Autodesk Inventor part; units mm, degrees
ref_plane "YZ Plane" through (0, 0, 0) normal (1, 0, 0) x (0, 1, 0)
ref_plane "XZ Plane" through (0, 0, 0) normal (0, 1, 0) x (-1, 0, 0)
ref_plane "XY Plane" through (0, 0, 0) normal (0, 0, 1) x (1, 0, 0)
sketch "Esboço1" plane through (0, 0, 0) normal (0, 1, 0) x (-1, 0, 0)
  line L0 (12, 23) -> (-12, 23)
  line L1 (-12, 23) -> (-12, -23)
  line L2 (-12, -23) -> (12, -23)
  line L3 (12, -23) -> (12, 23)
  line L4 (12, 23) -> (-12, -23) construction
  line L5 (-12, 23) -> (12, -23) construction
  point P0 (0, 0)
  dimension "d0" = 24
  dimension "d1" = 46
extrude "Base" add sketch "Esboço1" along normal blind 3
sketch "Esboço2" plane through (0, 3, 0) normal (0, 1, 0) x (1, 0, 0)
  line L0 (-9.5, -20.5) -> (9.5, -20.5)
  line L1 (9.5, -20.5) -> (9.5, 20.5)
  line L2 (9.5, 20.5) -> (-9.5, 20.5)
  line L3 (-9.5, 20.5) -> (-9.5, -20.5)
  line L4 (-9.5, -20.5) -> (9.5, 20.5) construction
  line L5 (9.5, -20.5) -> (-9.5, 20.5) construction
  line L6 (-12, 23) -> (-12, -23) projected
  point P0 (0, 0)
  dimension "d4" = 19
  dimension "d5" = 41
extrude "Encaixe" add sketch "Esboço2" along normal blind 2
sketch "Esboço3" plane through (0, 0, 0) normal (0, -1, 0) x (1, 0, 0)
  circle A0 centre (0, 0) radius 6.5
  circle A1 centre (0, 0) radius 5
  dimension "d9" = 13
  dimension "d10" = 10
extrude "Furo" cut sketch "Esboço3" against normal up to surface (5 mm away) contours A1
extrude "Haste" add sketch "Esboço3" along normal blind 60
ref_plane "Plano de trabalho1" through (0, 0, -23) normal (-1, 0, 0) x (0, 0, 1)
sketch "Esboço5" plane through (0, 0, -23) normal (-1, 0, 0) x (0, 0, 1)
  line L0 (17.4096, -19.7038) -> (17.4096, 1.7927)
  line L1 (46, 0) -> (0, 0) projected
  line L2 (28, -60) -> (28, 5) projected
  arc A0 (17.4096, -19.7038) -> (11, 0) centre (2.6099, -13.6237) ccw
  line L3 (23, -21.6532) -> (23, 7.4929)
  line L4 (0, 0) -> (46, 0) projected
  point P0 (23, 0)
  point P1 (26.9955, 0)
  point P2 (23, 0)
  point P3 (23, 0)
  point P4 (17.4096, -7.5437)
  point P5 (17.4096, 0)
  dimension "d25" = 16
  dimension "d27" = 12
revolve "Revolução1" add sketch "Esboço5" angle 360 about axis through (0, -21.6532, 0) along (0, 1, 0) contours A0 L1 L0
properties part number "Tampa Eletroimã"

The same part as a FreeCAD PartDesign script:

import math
import FreeCAD as App
import Part
import Sketcher
Q = App.Units.Quantity

doc = App.newDocument("Part")
body = doc.addObject("PartDesign::Body", "Body")

# Sketch on XZ plane
sketch1 = doc.addObject("Sketcher::SketchObject", "Sketch")
body.addObject(sketch1)
sketch1.AttachmentSupport = (doc.XZ_Plane, [""])
sketch1.MapMode = "FlatFace"
sketch1.addGeometry(Part.LineSegment(App.Vector(-12, -23, 0), App.Vector(-12, 23, 0)), False)
sketch1.addGeometry(Part.LineSegment(App.Vector(-12, 23, 0), App.Vector(12, 23, 0)), False)
sketch1.addGeometry(Part.LineSegment(App.Vector(12, 23, 0), App.Vector(12, -23, 0)), False)
sketch1.addGeometry(Part.LineSegment(App.Vector(12, -23, 0), App.Vector(-12, -23, 0)), False)
sketch1.addConstraint(Sketcher.Constraint("Coincident", 0, 2, 1, 1))
sketch1.addConstraint(Sketcher.Constraint("Coincident", 1, 2, 2, 1))
sketch1.addConstraint(Sketcher.Constraint("Coincident", 2, 2, 3, 1))
sketch1.addConstraint(Sketcher.Constraint("Coincident", 3, 2, 0, 1))
sketch1.addConstraint(Sketcher.Constraint("Vertical", 0))
sketch1.addConstraint(Sketcher.Constraint("Horizontal", 1))
sketch1.addConstraint(Sketcher.Constraint("Vertical", 2))
sketch1.addConstraint(Sketcher.Constraint("Horizontal", 3))
sketch1.addConstraint(Sketcher.Constraint("Symmetric", 0, 2, 2, 2, -1, 1))
sketch1.addConstraint(Sketcher.Constraint("DistanceX", 1, 1, 1, 2, Q("24 mm")))
sketch1.addConstraint(Sketcher.Constraint("DistanceY", 0, 1, 0, 2, Q("46 mm")))
pad1 = doc.addObject("PartDesign::Pad", "Pad")
body.addObject(pad1)
pad1.Profile = sketch1
pad1.Length = 3
pad1.Reversed = True

# Sketch on XZ plane
sketch2 = doc.addObject("Sketcher::SketchObject", "Sketch001")
body.addObject(sketch2)
sketch2.AttachmentSupport = (doc.XZ_Plane, [""])
sketch2.MapMode = "FlatFace"
sketch2.AttachmentOffset = App.Placement(App.Vector(0, 0, -3), App.Rotation())
sketch2.addGeometry(Part.LineSegment(App.Vector(-9.5, -20.5, 0), App.Vector(-9.5, 20.5, 0)), False)
sketch2.addGeometry(Part.LineSegment(App.Vector(-9.5, 20.5, 0), App.Vector(9.5, 20.5, 0)), False)
sketch2.addGeometry(Part.LineSegment(App.Vector(9.5, 20.5, 0), App.Vector(9.5, -20.5, 0)), False)
sketch2.addGeometry(Part.LineSegment(App.Vector(9.5, -20.5, 0), App.Vector(-9.5, -20.5, 0)), False)
sketch2.addConstraint(Sketcher.Constraint("Coincident", 0, 2, 1, 1))
sketch2.addConstraint(Sketcher.Constraint("Coincident", 1, 2, 2, 1))
sketch2.addConstraint(Sketcher.Constraint("Coincident", 2, 2, 3, 1))
sketch2.addConstraint(Sketcher.Constraint("Coincident", 3, 2, 0, 1))
sketch2.addConstraint(Sketcher.Constraint("Vertical", 0))
sketch2.addConstraint(Sketcher.Constraint("Horizontal", 1))
sketch2.addConstraint(Sketcher.Constraint("Vertical", 2))
sketch2.addConstraint(Sketcher.Constraint("Horizontal", 3))
sketch2.addConstraint(Sketcher.Constraint("Symmetric", 0, 2, 2, 2, -1, 1))
sketch2.addConstraint(Sketcher.Constraint("DistanceX", 1, 1, 1, 2, Q("19 mm")))
sketch2.addConstraint(Sketcher.Constraint("DistanceY", 0, 1, 0, 2, Q("41 mm")))
pad2 = doc.addObject("PartDesign::Pad", "Pad001")
body.addObject(pad2)
pad2.Profile = sketch2
pad2.Length = 2
pad2.Reversed = True

# Sketch on XZ plane
sketch3 = doc.addObject("Sketcher::SketchObject", "Sketch002")
body.addObject(sketch3)
sketch3.AttachmentSupport = (doc.XZ_Plane, [""])
sketch3.MapMode = "FlatFace"
sketch3.addGeometry(Part.Circle(App.Vector(0, 0, 0), App.Vector(0, 0, 1), 5), False)
sketch3.addConstraint(Sketcher.Constraint("Coincident", 0, 3, -1, 1))
sketch3.addConstraint(Sketcher.Constraint("Diameter", 0, Q("10 mm")))
pocket1 = doc.addObject("PartDesign::Pocket", "Pocket")
body.addObject(pocket1)
pocket1.Profile = sketch3
pocket1.Length = 5

# Sketch on XZ plane
sketch4 = doc.addObject("Sketcher::SketchObject", "Sketch003")
body.addObject(sketch4)
sketch4.AttachmentSupport = (doc.XZ_Plane, [""])
sketch4.MapMode = "FlatFace"
sketch4.addGeometry(Part.Circle(App.Vector(0, 0, 0), App.Vector(0, 0, 1), 6.5), False)
sketch4.addGeometry(Part.Circle(App.Vector(0, 0, 0), App.Vector(0, 0, 1), 5), False)
sketch4.addConstraint(Sketcher.Constraint("Coincident", 0, 3, -1, 1))
sketch4.addConstraint(Sketcher.Constraint("Coincident", 1, 3, -1, 1))
sketch4.addConstraint(Sketcher.Constraint("Diameter", 0, Q("13 mm")))
sketch4.addConstraint(Sketcher.Constraint("Diameter", 1, Q("10 mm")))
pad3 = doc.addObject("PartDesign::Pad", "Pad002")
body.addObject(pad3)
pad3.Profile = sketch4
pad3.Length = 60

# Sketch on YZ plane
sketch5 = doc.addObject("Sketcher::SketchObject", "Sketch004")
body.addObject(sketch5)
sketch5.AttachmentSupport = (doc.YZ_Plane, [""])
sketch5.MapMode = "FlatFace"
sketch5.addGeometry(Part.ArcOfCircle(Part.Circle(App.Vector(-13.6237, -20.3901, 0), App.Vector(0, 0, 1), 15.999961), math.radians(31.626669), math.radians(67.665868)), False)
sketch5.addGeometry(Part.LineSegment(App.Vector(-7.543599, -5.5904, 0), App.Vector(0, -5.5904, 0)), False)
sketch5.addGeometry(Part.LineSegment(App.Vector(0, -5.5904, 0), App.Vector(0, -12, 0)), False)
sketch5.addConstraint(Sketcher.Constraint("Coincident", 0, 2, 1, 1))
sketch5.addConstraint(Sketcher.Constraint("Coincident", 1, 2, 2, 1))
sketch5.addConstraint(Sketcher.Constraint("Coincident", 2, 2, 0, 1))
sketch5.addConstraint(Sketcher.Constraint("Horizontal", 1))
sketch5.addConstraint(Sketcher.Constraint("Vertical", 2))
sketch5.addConstraint(Sketcher.Constraint("PointOnObject", 1, 2, -2))
sketch5.addConstraint(Sketcher.Constraint("Radius", 0, Q("16 mm")))
sketch5.addConstraint(Sketcher.Constraint("DistanceY", 2, 2, -1, 1, Q("12 mm")))
sketch5.addConstraint(Sketcher.Constraint("DistanceY", 0, 3, -1, 1, Q("20.39 mm")))
sketch5.addConstraint(Sketcher.Constraint("DistanceX", 0, 3, 0, 2, Q("6.08 mm")))
revolution = doc.addObject("PartDesign::Revolution", "Revolution")
body.addObject(revolution)
revolution.Profile = sketch5
revolution.ReferenceAxis = (sketch5, ["H_Axis"])
revolution.Angle = 360

doc.recompute()
